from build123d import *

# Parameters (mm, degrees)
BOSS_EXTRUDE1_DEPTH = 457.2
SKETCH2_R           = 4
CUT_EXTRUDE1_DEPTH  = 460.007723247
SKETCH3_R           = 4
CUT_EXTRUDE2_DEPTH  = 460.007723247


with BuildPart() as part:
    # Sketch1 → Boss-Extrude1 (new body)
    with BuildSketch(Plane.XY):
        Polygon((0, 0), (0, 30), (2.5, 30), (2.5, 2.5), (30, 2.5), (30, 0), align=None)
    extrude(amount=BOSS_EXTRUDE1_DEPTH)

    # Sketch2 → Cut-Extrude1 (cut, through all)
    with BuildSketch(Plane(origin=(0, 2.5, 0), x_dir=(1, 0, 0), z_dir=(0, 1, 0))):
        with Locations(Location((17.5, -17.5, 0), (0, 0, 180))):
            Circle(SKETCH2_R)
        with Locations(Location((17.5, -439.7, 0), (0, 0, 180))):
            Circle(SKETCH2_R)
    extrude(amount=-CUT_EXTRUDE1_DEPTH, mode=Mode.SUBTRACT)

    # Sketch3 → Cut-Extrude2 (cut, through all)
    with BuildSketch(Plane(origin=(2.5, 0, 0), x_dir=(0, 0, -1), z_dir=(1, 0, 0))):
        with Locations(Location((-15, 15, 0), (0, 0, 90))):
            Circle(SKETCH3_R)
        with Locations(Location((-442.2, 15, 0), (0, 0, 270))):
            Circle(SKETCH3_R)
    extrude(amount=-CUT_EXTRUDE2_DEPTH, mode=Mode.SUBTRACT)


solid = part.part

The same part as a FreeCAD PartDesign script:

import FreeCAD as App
import Part
import Sketcher
from FreeCAD import Vector


def add_polygon(sketch, points):
    """Adds a closed chain of lines whose ends are joined by coincident constraints."""
    first, n = sketch.GeometryCount, len(points)
    for a, b in zip(points, points[1:] + points[:1]):
        sketch.addGeometry(Part.LineSegment(App.Vector(*a, 0), App.Vector(*b, 0)), False)
    for i in range(n):
        sketch.addConstraint(Sketcher.Constraint("Coincident", first + i, 2, first + (i + 1) % n, 1))

doc = App.newDocument("Part")
body = doc.addObject("PartDesign::Body", "Body")

# Sketch on XY plane
sketch1 = body.newObject("Sketcher::SketchObject", "Sketch")
sketch1.AttachmentSupport = (doc.getObject("XY_Plane"), [""])
sketch1.MapMode = "FlatFace"
add_polygon(sketch1, [(0, 30), (0, 0), (30, 0), (30, 2.5), (2.5, 2.5), (2.5, 30)])  # lines 0-5
sketch1.addConstraint(Sketcher.Constraint("Vertical", 0))
sketch1.addConstraint(Sketcher.Constraint("Horizontal", 1))
sketch1.addConstraint(Sketcher.Constraint("Vertical", 2))
sketch1.addConstraint(Sketcher.Constraint("Horizontal", 3))
sketch1.addConstraint(Sketcher.Constraint("Vertical", 4))
sketch1.addConstraint(Sketcher.Constraint("Horizontal", 5))
sketch1.addConstraint(Sketcher.Constraint("Coincident", 0, 2, -1, 1))
sketch1.addConstraint(Sketcher.Constraint("Equal", 1, 0))
sketch1.addConstraint(Sketcher.Constraint("Equal", 5, 2))
sketch1.addConstraint(Sketcher.Constraint("DistanceX", 1, 1, 1, 2, 30.0))
sketch1.addConstraint(Sketcher.Constraint("DistanceX", 3, 2, 3, 1, 27.5))
pad1 = body.newObject("PartDesign::Pad", "Pad")
pad1.Profile = sketch1
pad1.Length = 457.2

# Sketch on XZ plane
sketch2 = body.newObject("Sketcher::SketchObject", "Sketch001")
sketch2.AttachmentSupport = (doc.getObject("XZ_Plane"), [""])
sketch2.MapMode = "FlatFace"
sketch2.AttachmentOffset = App.Placement(Vector(0, 0, -2.5), App.Rotation())
sketch2.addGeometry(Part.Circle(Vector(17.5, 17.5, 0), Vector(0, 0, 1), 4), False)
sketch2.addGeometry(Part.Circle(Vector(17.5, 439.7, 0), Vector(0, 0, 1), 4), False)
sketch2.addConstraint(Sketcher.Constraint("Equal", 0, 1))
sketch2.addConstraint(Sketcher.Constraint("Vertical", 0, 3, 1, 3))
sketch2.addConstraint(Sketcher.Constraint("Diameter", 0, 8.0))
sketch2.addConstraint(Sketcher.Constraint("DistanceX", -1, 1, 0, 3, 17.5))
sketch2.addConstraint(Sketcher.Constraint("DistanceY", -1, 1, 0, 3, 17.5))
sketch2.addConstraint(Sketcher.Constraint("DistanceY", -1, 1, 1, 3, 439.7))
pocket1 = body.newObject("PartDesign::Pocket", "Pocket")
pocket1.Profile = sketch2
pocket1.Type = "ThroughAll"
pocket1.Reversed = True

# Sketch on YZ plane
sketch3 = body.newObject("Sketcher::SketchObject", "Sketch002")
sketch3.AttachmentSupport = (doc.getObject("YZ_Plane"), [""])
sketch3.MapMode = "FlatFace"
sketch3.AttachmentOffset = App.Placement(Vector(0, 0, 2.5), App.Rotation())
sketch3.addGeometry(Part.Circle(Vector(15, 15, 0), Vector(0, 0, 1), 4), False)
sketch3.addGeometry(Part.Circle(Vector(15, 442.2, 0), Vector(0, 0, 1), 4), False)
sketch3.addConstraint(Sketcher.Constraint("Equal", 0, 1))
sketch3.addConstraint(Sketcher.Constraint("Vertical", 0, 3, 1, 3))
sketch3.addConstraint(Sketcher.Constraint("Diameter", 0, 8.0))
sketch3.addConstraint(Sketcher.Constraint("DistanceX", -1, 1, 0, 3, 15.0))
sketch3.addConstraint(Sketcher.Constraint("DistanceY", -1, 1, 0, 3, 15.0))
sketch3.addConstraint(Sketcher.Constraint("DistanceY", -1, 1, 1, 3, 442.2))
pocket2 = body.newObject("PartDesign::Pocket", "Pocket001")
pocket2.Profile = sketch3
pocket2.Type = "ThroughAll"

doc.recompute()
